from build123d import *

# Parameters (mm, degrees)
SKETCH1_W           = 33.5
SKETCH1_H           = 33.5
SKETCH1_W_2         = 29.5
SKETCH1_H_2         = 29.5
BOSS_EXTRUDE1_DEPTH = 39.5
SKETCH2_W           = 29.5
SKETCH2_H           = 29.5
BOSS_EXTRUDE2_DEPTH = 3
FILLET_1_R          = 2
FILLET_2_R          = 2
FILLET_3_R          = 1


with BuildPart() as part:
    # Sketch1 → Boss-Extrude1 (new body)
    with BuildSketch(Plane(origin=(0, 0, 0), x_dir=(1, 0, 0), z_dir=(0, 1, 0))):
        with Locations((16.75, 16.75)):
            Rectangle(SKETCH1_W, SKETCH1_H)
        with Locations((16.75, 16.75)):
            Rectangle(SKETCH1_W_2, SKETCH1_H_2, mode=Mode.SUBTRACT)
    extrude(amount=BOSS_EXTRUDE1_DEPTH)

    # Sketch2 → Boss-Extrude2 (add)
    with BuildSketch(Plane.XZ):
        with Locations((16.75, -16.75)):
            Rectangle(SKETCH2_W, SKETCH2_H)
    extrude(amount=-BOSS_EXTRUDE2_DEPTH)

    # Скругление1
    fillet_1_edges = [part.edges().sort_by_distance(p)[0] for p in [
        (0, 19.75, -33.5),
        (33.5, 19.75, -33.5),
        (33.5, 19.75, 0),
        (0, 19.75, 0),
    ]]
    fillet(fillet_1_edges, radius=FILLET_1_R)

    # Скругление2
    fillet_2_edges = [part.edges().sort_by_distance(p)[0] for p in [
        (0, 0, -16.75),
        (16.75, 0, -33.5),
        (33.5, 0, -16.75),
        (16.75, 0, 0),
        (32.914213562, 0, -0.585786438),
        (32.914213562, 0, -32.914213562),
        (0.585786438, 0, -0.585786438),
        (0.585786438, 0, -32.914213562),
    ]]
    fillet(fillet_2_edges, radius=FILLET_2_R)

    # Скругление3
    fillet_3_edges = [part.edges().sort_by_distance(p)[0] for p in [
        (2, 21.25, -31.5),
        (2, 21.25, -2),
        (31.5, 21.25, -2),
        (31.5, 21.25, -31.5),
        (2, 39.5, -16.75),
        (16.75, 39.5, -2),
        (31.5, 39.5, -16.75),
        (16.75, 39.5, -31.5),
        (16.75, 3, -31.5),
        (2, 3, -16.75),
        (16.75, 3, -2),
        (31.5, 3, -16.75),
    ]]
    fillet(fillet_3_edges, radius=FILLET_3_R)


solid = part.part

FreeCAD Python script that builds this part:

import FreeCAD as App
import Part
import Sketcher


def edges_at(feature, points):
    """Names of the edges that pass closest to the given points."""
    edges = feature.Shape.Edges
    near = lambda p: min(range(len(edges)), key=lambda i: edges[i].distToShape(Part.Vertex(*p))[0])
    return sorted({f"Edge{near(p) + 1}" for p in points})


def add_polygon(sketch, points):
    """Adds a closed chain of lines whose ends are joined by coincident constraints."""
    first, n = sketch.GeometryCount, len(points)
    for a, b in zip(points, points[1:] + points[:1]):
        sketch.addGeometry(Part.LineSegment(App.Vector(*a, 0), App.Vector(*b, 0)), False)
    for i in range(n):
        sketch.addConstraint(Sketcher.Constraint("Coincident", first + i, 2, first + (i + 1) % n, 1))

doc = App.newDocument("Part")
body = doc.addObject("PartDesign::Body", "Body")

# Sketch on XZ plane
sketch1 = body.newObject("Sketcher::SketchObject", "Sketch")
sketch1.AttachmentSupport = (doc.getObject("XZ_Plane"), [""])
sketch1.MapMode = "FlatFace"
add_polygon(sketch1, [(0, -33.5), (0, 0), (33.5, 0), (33.5, -33.5)])  # lines 0-3
add_polygon(sketch1, [(31.5, -2), (2, -2), (2, -31.5), (31.5, -31.5)])  # lines 4-7
sketch1.addConstraint([
    Sketcher.Constraint("Vertical", 0),
    Sketcher.Constraint("Horizontal", 1),
    Sketcher.Constraint("Vertical", 2),
    Sketcher.Constraint("Horizontal", 3),
    Sketcher.Constraint("Horizontal", 4),
    Sketcher.Constraint("Vertical", 5),
    Sketcher.Constraint("Horizontal", 6),
    Sketcher.Constraint("Vertical", 7),
    Sketcher.Constraint("Coincident", 0, 2, -1, 1),
    Sketcher.Constraint("Equal", 3, 0),
    Sketcher.Constraint("Equal", 6, 5),
    Sketcher.Constraint("DistanceX", 1, 1, 1, 2, 33.5),
    Sketcher.Constraint("DistanceX", 4, 2, 4, 1, 29.5),
    Sketcher.Constraint("DistanceX", -1, 1, 4, 2, 2.0),
    Sketcher.Constraint("DistanceY", 4, 2, -1, 1, 2.0),
])
pad1 = body.newObject("PartDesign::Pad", "Pad")
pad1.Profile = sketch1
pad1.Length = 39.5
pad1.Reversed = True

# Sketch on XZ plane
sketch2 = body.newObject("Sketcher::SketchObject", "Sketch001")
sketch2.AttachmentSupport = (doc.getObject("XZ_Plane"), [""])
sketch2.MapMode = "FlatFace"
add_polygon(sketch2, [(2, -2), (2, -31.5), (31.5, -31.5), (31.5, -2)])  # lines 0-3
sketch2.addConstraint([
    Sketcher.Constraint("Vertical", 0),
    Sketcher.Constraint("Horizontal", 1),
    Sketcher.Constraint("Vertical", 2),
    Sketcher.Constraint("Horizontal", 3),
    Sketcher.Constraint("Equal", 3, 0),
    Sketcher.Constraint("DistanceX", 1, 1, 1, 2, 29.5),
    Sketcher.Constraint("DistanceX", -1, 1, 0, 2, 2.0),
    Sketcher.Constraint("DistanceY", 2, 2, -1, 1, 2.0),
])
pad2 = body.newObject("PartDesign::Pad", "Pad001")
pad2.Profile = sketch2
pad2.Length = 3
pad2.Reversed = True
doc.recompute()

fillet = body.newObject("PartDesign::Fillet", "Fillet")
fillet.Base = (pad2, edges_at(pad2, [
    (0, 19.75, -33.5),
    (33.5, 19.75, -33.5),
    (33.5, 19.75, 0),
    (0, 19.75, 0),
]))
fillet.Radius = 2
doc.recompute()

fillet2 = body.newObject("PartDesign::Fillet", "Fillet001")
fillet2.Base = (fillet, edges_at(fillet, [
    (0, 0, -16.75),
    (16.75, 0, -33.5),
    (33.5, 0, -16.75),
    (16.75, 0, 0),
    (32.914, 0, -0.586),
    (32.914, 0, -32.914),
    (0.586, 0, -0.586),
    (0.586, 0, -32.914),
]))
fillet2.Radius = 2
doc.recompute()

fillet3 = body.newObject("PartDesign::Fillet", "Fillet002")
fillet3.Base = (fillet2, edges_at(fillet2, [
    (2, 21.25, -31.5),
    (2, 21.25, -2),
    (31.5, 21.25, -2),
    (31.5, 21.25, -31.5),
    (2, 39.5, -16.75),
    (16.75, 39.5, -2),
    (31.5, 39.5, -16.75),
    (16.75, 39.5, -31.5),
    (16.75, 3, -31.5),
    (2, 3, -16.75),
    (16.75, 3, -2),
    (31.5, 3, -16.75),
]))
fillet3.Radius = 1

doc.recompute()
